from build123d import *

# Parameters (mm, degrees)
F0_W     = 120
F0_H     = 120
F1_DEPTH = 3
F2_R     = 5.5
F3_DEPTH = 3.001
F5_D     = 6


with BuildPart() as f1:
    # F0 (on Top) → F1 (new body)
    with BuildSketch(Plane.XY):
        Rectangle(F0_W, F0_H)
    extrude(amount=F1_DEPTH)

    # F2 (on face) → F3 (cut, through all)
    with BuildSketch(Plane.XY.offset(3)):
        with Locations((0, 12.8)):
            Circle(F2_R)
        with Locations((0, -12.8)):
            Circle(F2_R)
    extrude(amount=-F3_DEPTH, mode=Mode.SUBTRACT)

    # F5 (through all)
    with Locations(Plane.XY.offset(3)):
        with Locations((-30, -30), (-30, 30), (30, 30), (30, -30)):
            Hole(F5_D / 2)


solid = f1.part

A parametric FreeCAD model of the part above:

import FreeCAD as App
import Part
import Sketcher
from FreeCAD import Vector
Q = App.Units.Quantity


def add_polygon(sketch, points):
    """Adds a closed chain of lines whose ends are joined by coincident constraints."""
    first, n = sketch.GeometryCount, len(points)
    for a, b in zip(points, points[1:] + points[:1]):
        sketch.addGeometry(Part.LineSegment(App.Vector(*a, 0), App.Vector(*b, 0)), False)
    for i in range(n):
        sketch.addConstraint(Sketcher.Constraint("Coincident", first + i, 2, first + (i + 1) % n, 1))

doc = App.newDocument("Part")
body = doc.addObject("PartDesign::Body", "Body")

# Sketch on XY plane
sketch1 = body.newObject("Sketcher::SketchObject", "Sketch")
sketch1.AttachmentSupport = (doc.getObject("XY_Plane"), [""])
sketch1.MapMode = "FlatFace"
add_polygon(sketch1, [(-60, 60), (-60, -60), (60, -60), (60, 60)])  # lines 0-3
sketch1.addConstraint([
    Sketcher.Constraint("Vertical", 0),
    Sketcher.Constraint("Horizontal", 1),
    Sketcher.Constraint("Vertical", 2),
    Sketcher.Constraint("Horizontal", 3),
    Sketcher.Constraint("Symmetric", 0, 2, 2, 2, -1, 1),
    Sketcher.Constraint("Equal", 3, 0),
    Sketcher.Constraint("DistanceX", 1, 1, 1, 2, Q("120 mm")),
])
pad1 = body.newObject("PartDesign::Pad", "Pad")
pad1.Profile = sketch1
pad1.Length = 3

# Sketch on XY plane
sketch2 = body.newObject("Sketcher::SketchObject", "Sketch001")
sketch2.AttachmentSupport = (doc.getObject("XY_Plane"), [""])
sketch2.MapMode = "FlatFace"
sketch2.AttachmentOffset = App.Placement(Vector(0, 0, 3), App.Rotation())
sketch2.addGeometry([
    Part.Circle(Vector(0, 12.8, 0), Vector(0, 0, 1), 5.5),
    Part.Circle(Vector(0, -12.8, 0), Vector(0, 0, 1), 5.5),
], False)
sketch2.addConstraint([
    Sketcher.Constraint("Equal", 0, 1),
    Sketcher.Constraint("Symmetric", 0, 3, 1, 3, -1, 1),
    Sketcher.Constraint("PointOnObject", 0, 3, -2),
    Sketcher.Constraint("Diameter", 0, Q("11 mm")),
    Sketcher.Constraint("DistanceY", -1, 1, 0, 3, Q("12.8 mm")),
])
pocket1 = body.newObject("PartDesign::Pocket", "Pocket")
pocket1.Profile = sketch2
pocket1.Type = "ThroughAll"

# Sketch on XY plane
sketch3 = body.newObject("Sketcher::SketchObject", "Sketch002")
sketch3.AttachmentSupport = (doc.getObject("XY_Plane"), [""])
sketch3.MapMode = "FlatFace"
sketch3.AttachmentOffset = App.Placement(Vector(0, 0, 3), App.Rotation())
sketch3.addGeometry([
    Part.Circle(Vector(-30, -30, 0), Vector(0, 0, 1), 3),
    Part.Circle(Vector(-30, 30, 0), Vector(0, 0, 1), 3),
    Part.Circle(Vector(30, 30, 0), Vector(0, 0, 1), 3),
    Part.Circle(Vector(30, -30, 0), Vector(0, 0, 1), 3),
], False)
sketch3.addConstraint([
    Sketcher.Constraint("Equal", 0, 1),
    Sketcher.Constraint("Equal", 1, 2),
    Sketcher.Constraint("Equal", 2, 3),
    Sketcher.Constraint("Symmetric", 0, 3, 2, 3, -1, 1),
    Sketcher.Constraint("Symmetric", 1, 3, 3, 3, -1, 1),
    Sketcher.Constraint("Symmetric", 1, 3, 2, 3, -2),
    Sketcher.Constraint("Diameter", 0, Q("6 mm")),
    Sketcher.Constraint("DistanceX", 0, 3, -1, 1, Q("30 mm")),
    Sketcher.Constraint("DistanceY", 0, 3, -1, 1, Q("30 mm")),
])
doc.recompute()
hole = body.newObject("PartDesign::Hole", "Hole")
hole.Profile = sketch3
hole.ThreadType = "None"
hole.Diameter = 6
hole.DepthType = "ThroughAll"

doc.recompute()
